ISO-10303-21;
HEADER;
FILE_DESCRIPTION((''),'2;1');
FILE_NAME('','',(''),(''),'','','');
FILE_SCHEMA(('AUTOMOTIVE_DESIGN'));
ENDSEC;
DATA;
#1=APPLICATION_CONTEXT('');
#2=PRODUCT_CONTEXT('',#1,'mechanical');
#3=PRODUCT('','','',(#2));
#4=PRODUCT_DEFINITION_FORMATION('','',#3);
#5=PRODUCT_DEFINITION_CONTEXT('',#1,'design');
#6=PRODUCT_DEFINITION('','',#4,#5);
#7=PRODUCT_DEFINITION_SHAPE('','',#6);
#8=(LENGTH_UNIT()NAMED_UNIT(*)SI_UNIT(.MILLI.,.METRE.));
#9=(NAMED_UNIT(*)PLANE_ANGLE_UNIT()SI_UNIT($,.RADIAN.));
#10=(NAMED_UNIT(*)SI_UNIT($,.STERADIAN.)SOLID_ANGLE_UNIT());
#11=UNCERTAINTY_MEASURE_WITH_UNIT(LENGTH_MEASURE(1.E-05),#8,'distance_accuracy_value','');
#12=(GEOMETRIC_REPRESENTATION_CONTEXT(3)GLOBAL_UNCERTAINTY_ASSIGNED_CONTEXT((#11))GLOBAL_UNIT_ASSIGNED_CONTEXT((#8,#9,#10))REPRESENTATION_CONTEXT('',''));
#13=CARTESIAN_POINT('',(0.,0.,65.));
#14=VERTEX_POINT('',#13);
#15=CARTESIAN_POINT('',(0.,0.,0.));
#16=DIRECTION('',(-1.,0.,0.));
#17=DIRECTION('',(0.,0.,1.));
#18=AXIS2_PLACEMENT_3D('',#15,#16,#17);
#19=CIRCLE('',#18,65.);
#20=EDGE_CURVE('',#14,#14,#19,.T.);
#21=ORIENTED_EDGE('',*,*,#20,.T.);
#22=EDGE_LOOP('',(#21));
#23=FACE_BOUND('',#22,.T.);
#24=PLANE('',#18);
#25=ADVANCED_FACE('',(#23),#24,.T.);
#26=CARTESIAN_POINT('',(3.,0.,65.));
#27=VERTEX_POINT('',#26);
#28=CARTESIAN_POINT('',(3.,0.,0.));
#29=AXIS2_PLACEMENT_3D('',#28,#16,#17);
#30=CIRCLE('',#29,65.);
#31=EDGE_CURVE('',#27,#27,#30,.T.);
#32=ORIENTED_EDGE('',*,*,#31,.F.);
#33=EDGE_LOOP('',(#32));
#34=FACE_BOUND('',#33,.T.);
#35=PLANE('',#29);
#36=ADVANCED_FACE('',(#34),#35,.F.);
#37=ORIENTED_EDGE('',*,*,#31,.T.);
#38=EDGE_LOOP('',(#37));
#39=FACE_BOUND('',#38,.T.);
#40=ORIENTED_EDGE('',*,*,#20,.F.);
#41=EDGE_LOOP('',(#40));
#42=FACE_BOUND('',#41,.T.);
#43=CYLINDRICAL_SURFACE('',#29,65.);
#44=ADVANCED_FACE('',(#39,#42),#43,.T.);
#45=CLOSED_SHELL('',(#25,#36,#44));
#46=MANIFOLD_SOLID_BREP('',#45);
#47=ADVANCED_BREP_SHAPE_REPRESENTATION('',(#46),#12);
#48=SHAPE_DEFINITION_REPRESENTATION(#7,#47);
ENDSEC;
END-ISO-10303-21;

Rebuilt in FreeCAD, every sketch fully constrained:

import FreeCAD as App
import Part
import Sketcher
Q = App.Units.Quantity

doc = App.newDocument("Part")
body = doc.addObject("PartDesign::Body", "Body")

# Sketch on YZ plane
sketch1 = body.newObject("Sketcher::SketchObject", "Sketch")
sketch1.AttachmentSupport = (doc.getObject("YZ_Plane"), [""])
sketch1.MapMode = "FlatFace"
sketch1.addGeometry(Part.Circle(App.Vector(0, 0, 0), App.Vector(0, 0, 1), 65), False)
sketch1.addConstraint(Sketcher.Constraint("Coincident", 0, 3, -1, 1))
sketch1.addConstraint(Sketcher.Constraint("Diameter", 0, Q("130 mm")))
pad1 = body.newObject("PartDesign::Pad", "Pad")
pad1.Profile = sketch1
pad1.Length = 3

doc.recompute()
